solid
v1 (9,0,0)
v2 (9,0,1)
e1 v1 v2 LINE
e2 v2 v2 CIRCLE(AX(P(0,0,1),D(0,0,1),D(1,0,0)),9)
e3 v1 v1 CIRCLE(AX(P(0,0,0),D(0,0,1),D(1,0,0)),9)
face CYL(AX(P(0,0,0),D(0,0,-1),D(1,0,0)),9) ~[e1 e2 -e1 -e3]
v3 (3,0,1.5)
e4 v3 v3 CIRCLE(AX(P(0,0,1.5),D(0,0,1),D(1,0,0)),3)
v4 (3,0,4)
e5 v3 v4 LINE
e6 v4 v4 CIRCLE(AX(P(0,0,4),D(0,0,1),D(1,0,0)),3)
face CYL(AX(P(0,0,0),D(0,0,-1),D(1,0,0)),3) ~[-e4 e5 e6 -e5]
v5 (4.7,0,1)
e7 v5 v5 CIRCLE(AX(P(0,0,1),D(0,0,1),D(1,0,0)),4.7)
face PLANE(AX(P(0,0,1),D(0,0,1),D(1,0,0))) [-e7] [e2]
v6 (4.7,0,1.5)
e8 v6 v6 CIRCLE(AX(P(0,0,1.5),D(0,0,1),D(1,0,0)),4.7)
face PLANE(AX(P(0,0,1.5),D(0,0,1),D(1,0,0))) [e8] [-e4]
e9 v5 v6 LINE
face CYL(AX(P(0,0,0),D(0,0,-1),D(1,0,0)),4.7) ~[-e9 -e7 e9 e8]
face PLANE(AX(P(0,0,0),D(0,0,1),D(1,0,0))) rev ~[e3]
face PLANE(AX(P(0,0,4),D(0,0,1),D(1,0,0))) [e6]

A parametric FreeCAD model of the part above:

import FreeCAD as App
import Part
import Sketcher
from FreeCAD import Vector

doc = App.newDocument("Part")
body = doc.addObject("PartDesign::Body", "Body")

# Sketch on XY plane
sketch1 = doc.addObject("Sketcher::SketchObject", "Sketch")
body.addObject(sketch1)
sketch1.AttachmentSupport = (doc.XY_Plane, [""])
sketch1.MapMode = "FlatFace"
sketch1.addGeometry(Part.Circle(Vector(0, 0, 0), Vector(0, 0, 1), 3), False)
sketch1.addConstraint([
    Sketcher.Constraint("Coincident", 0, 3, -1, 1),
    Sketcher.Constraint("Diameter", 0, 6.0),
])
pad1 = doc.addObject("PartDesign::Pad", "Pad")
body.addObject(pad1)
pad1.Profile = sketch1
pad1.Length = 4
body2 = doc.addObject("PartDesign::Body", "Body001")

# Sketch on XY plane
sketch2 = doc.addObject("Sketcher::SketchObject", "Sketch001")
body2.addObject(sketch2)
sketch2.AttachmentSupport = (doc.getObject("XY_Plane001"), [""])
sketch2.MapMode = "FlatFace"
sketch2.addGeometry([
    Part.Circle(Vector(0, 0, 0), Vector(0, 0, 1), 9),
    Part.Circle(Vector(0, 0, 0), Vector(0, 0, 1), 4.7),
], False)
sketch2.addConstraint([
    Sketcher.Constraint("Coincident", 0, 3, -1, 1),
    Sketcher.Constraint("Coincident", 1, 3, -1, 1),
    Sketcher.Constraint("Diameter", 0, 18.0),
    Sketcher.Constraint("Diameter", 1, 9.4),
])
pad2 = doc.addObject("PartDesign::Pad", "Pad001")
body2.addObject(pad2)
pad2.Profile = sketch2
pad2.Length = 1
body.AllowCompound = True
doc.recompute()

boolean = doc.addObject("PartDesign::Boolean", "Boolean")
body.addObject(boolean)
boolean.Type = "Fuse"
boolean.addObjects([body2])

# Sketch on XY plane
sketch3 = doc.addObject("Sketcher::SketchObject", "Sketch002")
body.addObject(sketch3)
sketch3.AttachmentSupport = (doc.XY_Plane, [""])
sketch3.MapMode = "FlatFace"
sketch3.addGeometry([
    Part.Circle(Vector(0, 0, 0), Vector(0, 0, 1), 4.7),
    Part.Circle(Vector(0, 0, 0), Vector(0, 0, 1), 3),
], False)
sketch3.addConstraint([
    Sketcher.Constraint("Coincident", 0, 3, -1, 1),
    Sketcher.Constraint("Coincident", 1, 3, -1, 1),
    Sketcher.Constraint("Diameter", 1, 6.0),
    Sketcher.Constraint("Diameter", 0, 9.4),
])
pad3 = doc.addObject("PartDesign::Pad", "Pad002")
body.addObject(pad3)
pad3.Profile = sketch3
pad3.Length = 1.5

doc.recompute()
